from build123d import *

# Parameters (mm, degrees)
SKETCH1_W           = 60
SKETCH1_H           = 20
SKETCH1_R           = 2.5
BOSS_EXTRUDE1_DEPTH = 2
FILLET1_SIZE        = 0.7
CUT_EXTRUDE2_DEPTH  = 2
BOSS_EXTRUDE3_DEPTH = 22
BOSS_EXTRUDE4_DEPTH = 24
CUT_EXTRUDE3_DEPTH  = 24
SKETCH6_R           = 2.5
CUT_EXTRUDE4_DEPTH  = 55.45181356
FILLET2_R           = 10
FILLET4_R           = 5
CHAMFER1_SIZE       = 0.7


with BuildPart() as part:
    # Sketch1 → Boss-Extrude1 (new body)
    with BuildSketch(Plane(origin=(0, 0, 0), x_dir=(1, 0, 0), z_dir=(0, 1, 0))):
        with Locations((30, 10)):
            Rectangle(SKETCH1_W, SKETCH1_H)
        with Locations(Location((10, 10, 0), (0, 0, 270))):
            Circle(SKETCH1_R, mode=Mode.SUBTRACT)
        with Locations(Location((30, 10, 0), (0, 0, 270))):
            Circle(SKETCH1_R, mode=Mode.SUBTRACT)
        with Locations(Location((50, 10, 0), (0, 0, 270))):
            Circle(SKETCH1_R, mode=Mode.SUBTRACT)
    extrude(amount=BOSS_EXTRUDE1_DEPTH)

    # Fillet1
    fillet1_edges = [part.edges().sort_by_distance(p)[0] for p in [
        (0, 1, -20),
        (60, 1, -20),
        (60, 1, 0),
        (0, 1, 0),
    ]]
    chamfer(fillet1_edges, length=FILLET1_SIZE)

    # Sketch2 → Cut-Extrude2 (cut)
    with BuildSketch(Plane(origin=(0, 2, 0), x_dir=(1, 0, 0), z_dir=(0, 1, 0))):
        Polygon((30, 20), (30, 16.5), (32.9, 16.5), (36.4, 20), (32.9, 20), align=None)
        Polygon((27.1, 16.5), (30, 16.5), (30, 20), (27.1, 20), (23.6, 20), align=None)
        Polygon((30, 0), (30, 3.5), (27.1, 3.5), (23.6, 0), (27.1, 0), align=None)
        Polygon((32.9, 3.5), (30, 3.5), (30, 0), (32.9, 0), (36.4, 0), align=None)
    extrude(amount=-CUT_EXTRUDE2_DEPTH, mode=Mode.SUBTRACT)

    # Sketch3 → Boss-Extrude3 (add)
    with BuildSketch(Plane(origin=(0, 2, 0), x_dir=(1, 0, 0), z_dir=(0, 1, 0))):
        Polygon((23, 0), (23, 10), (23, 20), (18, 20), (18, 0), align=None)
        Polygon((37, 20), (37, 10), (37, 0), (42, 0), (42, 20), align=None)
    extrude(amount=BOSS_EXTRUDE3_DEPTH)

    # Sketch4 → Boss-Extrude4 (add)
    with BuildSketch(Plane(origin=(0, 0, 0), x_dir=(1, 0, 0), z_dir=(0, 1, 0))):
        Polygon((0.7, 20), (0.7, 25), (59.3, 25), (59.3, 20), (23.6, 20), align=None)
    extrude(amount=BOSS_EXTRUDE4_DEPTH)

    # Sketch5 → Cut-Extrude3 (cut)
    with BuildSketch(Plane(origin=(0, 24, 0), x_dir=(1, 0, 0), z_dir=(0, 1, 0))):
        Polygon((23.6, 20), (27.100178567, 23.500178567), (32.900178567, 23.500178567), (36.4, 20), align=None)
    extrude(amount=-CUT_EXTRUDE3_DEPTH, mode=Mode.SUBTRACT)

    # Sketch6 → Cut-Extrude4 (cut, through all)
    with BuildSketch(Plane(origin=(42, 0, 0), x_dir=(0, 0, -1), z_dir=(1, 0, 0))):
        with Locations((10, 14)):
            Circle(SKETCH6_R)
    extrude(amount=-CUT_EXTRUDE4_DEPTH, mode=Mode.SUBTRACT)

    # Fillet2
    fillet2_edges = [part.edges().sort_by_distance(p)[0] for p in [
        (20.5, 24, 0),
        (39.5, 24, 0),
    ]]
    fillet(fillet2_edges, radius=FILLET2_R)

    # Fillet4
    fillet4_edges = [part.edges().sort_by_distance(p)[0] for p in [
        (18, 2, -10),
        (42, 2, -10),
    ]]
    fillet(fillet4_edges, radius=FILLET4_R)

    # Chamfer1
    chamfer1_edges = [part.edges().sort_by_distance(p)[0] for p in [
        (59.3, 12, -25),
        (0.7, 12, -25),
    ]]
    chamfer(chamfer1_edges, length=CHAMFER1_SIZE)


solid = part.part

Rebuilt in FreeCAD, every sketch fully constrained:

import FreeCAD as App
import Part
import Sketcher

V = App.Vector
Q = App.Units.Quantity


def edges_at(feature, points):
    """Names of the edges that pass closest to the given points."""
    edges = feature.Shape.Edges
    near = lambda p: min(range(len(edges)), key=lambda i: edges[i].distToShape(Part.Vertex(*p))[0])
    return sorted({f"Edge{near(p) + 1}" for p in points})


def add_polygon(sketch, points):
    """Adds a closed chain of lines whose ends are joined by coincident constraints."""
    first, n = sketch.GeometryCount, len(points)
    for a, b in zip(points, points[1:] + points[:1]):
        sketch.addGeometry(Part.LineSegment(App.Vector(*a, 0), App.Vector(*b, 0)), False)
    for i in range(n):
        sketch.addConstraint(Sketcher.Constraint("Coincident", first + i, 2, first + (i + 1) % n, 1))

doc = App.newDocument("Part")
body = doc.addObject("PartDesign::Body", "Body")

# Sketch on XZ plane
sketch1 = body.newObject("Sketcher::SketchObject", "Sketch")
sketch1.AttachmentSupport = (doc.getObject("XZ_Plane"), [""])
sketch1.MapMode = "FlatFace"
add_polygon(sketch1, [(0, -20), (0, 0), (60, 0), (60, -20)])  # lines 0-3
sketch1.addGeometry(Part.Circle(V(10, -10, 0), V(0, 0, 1), 2.5), False)  # 4
sketch1.addGeometry(Part.Circle(V(30, -10, 0), V(0, 0, 1), 2.5), False)  # 5
sketch1.addGeometry(Part.Circle(V(50, -10, 0), V(0, 0, 1), 2.5), False)  # 6
sketch1.addConstraint([
    Sketcher.Constraint("Vertical", 0),
    Sketcher.Constraint("Horizontal", 1),
    Sketcher.Constraint("Vertical", 2),
    Sketcher.Constraint("Horizontal", 3),
    Sketcher.Constraint("Coincident", 0, 2, -1, 1),
    Sketcher.Constraint("Equal", 4, 5),
    Sketcher.Constraint("Equal", 5, 6),
    Sketcher.Constraint("Horizontal", 4, 3, 5, 3),
    Sketcher.Constraint("Horizontal", 5, 3, 6, 3),
    Sketcher.Constraint("Diameter", 4, 5.0),
    Sketcher.Constraint("DistanceX", 1, 1, 1, 2, 60.0),
    Sketcher.Constraint("DistanceY", 0, 1, 0, 2, 20.0),
    Sketcher.Constraint("DistanceX", -1, 1, 4, 3, 10.0),
    Sketcher.Constraint("DistanceY", 4, 3, -1, 1, 10.0),
    Sketcher.Constraint("DistanceX", -1, 1, 5, 3, 30.0),
    Sketcher.Constraint("DistanceX", -1, 1, 6, 3, 50.0),
])
pad1 = body.newObject("PartDesign::Pad", "Pad")
pad1.Profile = sketch1
pad1.Length = 2
pad1.Reversed = True
doc.recompute()

chamfer = body.newObject("PartDesign::Chamfer", "Chamfer")
chamfer.Base = (pad1, edges_at(pad1, [
    (0, 1, -20),
    (60, 1, -20),
    (60, 1, 0),
    (0, 1, 0),
]))
chamfer.Size = 0.7

# Sketch on XZ plane
sketch2 = body.newObject("Sketcher::SketchObject", "Sketch001")
sketch2.AttachmentSupport = (doc.getObject("XZ_Plane"), [""])
sketch2.MapMode = "FlatFace"
sketch2.AttachmentOffset = App.Placement(V(0, 0, -2), App.Rotation())
add_polygon(sketch2, [(32.9, -16.5), (36.4, -20), (23.6, -20), (27.1, -16.5)])  # lines 0-3
add_polygon(sketch2, [(27.1, -3.5), (23.6, 0), (36.4, 0), (32.9, -3.5)])  # lines 4-7
sketch2.addConstraint([
    Sketcher.Constraint("Horizontal", 1),
    Sketcher.Constraint("Horizontal", 3),
    Sketcher.Constraint("Horizontal", 5),
    Sketcher.Constraint("Horizontal", 7),
    Sketcher.Constraint("PointOnObject", 4, 2, -1),
    Sketcher.Constraint("Perpendicular", 0, 2),
    Sketcher.Constraint("Perpendicular", 2, 4),
    Sketcher.Constraint("Perpendicular", 4, 6),
    Sketcher.Constraint("Vertical", 1, 2, 4, 2),
    Sketcher.Constraint("Vertical", 0, 2, 5, 2),
    Sketcher.Constraint("Vertical", 3, 2, 6, 2),
    Sketcher.Constraint("Vertical", 2, 2, 7, 2),
    Sketcher.Constraint("DistanceX", 1, 2, 1, 1, 12.8),
    Sketcher.Constraint("DistanceX", 3, 1, 3, 2, 5.8),
    Sketcher.Constraint("DistanceY", 0, 2, -1, 1, 20.0),
    Sketcher.Constraint("DistanceX", -1, 1, 0, 2, 36.4),
])
pocket1 = body.newObject("PartDesign::Pocket", "Pocket")
pocket1.Profile = sketch2
pocket1.Length = 2
pocket1.Reversed = True

# Sketch on XZ plane
sketch3 = body.newObject("Sketcher::SketchObject", "Sketch002")
sketch3.AttachmentSupport = (doc.getObject("XZ_Plane"), [""])
sketch3.MapMode = "FlatFace"
sketch3.AttachmentOffset = App.Placement(V(0, 0, -2), App.Rotation())
add_polygon(sketch3, [(23, 0), (23, -20), (18, -20), (18, 0)])  # lines 0-3
add_polygon(sketch3, [(37, -20), (37, 0), (42, 0), (42, -20)])  # lines 4-7
sketch3.addConstraint([
    Sketcher.Constraint("Vertical", 0),
    Sketcher.Constraint("Horizontal", 1),
    Sketcher.Constraint("Vertical", 2),
    Sketcher.Constraint("Horizontal", 3),
    Sketcher.Constraint("Vertical", 4),
    Sketcher.Constraint("Horizontal", 5),
    Sketcher.Constraint("Vertical", 6),
    Sketcher.Constraint("Horizontal", 7),
    Sketcher.Constraint("PointOnObject", 2, 2, -1),
    Sketcher.Constraint("PointOnObject", 4, 2, -1),
    Sketcher.Constraint("Horizontal", 1, 2, 6, 2),
    Sketcher.Constraint("Equal", 3, 5),
    Sketcher.Constraint("DistanceX", 1, 2, 1, 1, 5.0),
    Sketcher.Constraint("DistanceY", 0, 2, 0, 1, 20.0),
    Sketcher.Constraint("DistanceX", -1, 1, 0, 2, 23.0),
    Sketcher.Constraint("DistanceX", -1, 1, 4, 2, 37.0),
])
pad2 = body.newObject("PartDesign::Pad", "Pad001")
pad2.Profile = sketch3
pad2.Length = 22
pad2.Reversed = True

# Sketch on XZ plane
sketch4 = body.newObject("Sketcher::SketchObject", "Sketch003")
sketch4.AttachmentSupport = (doc.getObject("XZ_Plane"), [""])
sketch4.MapMode = "FlatFace"
add_polygon(sketch4, [(0.7, -25), (0.7, -20), (59.3, -20), (59.3, -25)])  # lines 0-3
sketch4.addConstraint([
    Sketcher.Constraint("Vertical", 0),
    Sketcher.Constraint("Horizontal", 1),
    Sketcher.Constraint("Vertical", 2),
    Sketcher.Constraint("Horizontal", 3),
    Sketcher.Constraint("DistanceY", 0, 1, 0, 2, 5.0),
    Sketcher.Constraint("DistanceX", 1, 1, 1, 2, 58.6),
    Sketcher.Constraint("DistanceY", 0, 2, -1, 1, 20.0),
    Sketcher.Constraint("DistanceX", -1, 1, 0, 2, 0.7),
])
pad3 = body.newObject("PartDesign::Pad", "Pad002")
pad3.Profile = sketch4
pad3.Length = 24
pad3.Reversed = True

# Sketch on XZ plane
sketch5 = body.newObject("Sketcher::SketchObject", "Sketch004")
sketch5.AttachmentSupport = (doc.getObject("XZ_Plane"), [""])
sketch5.MapMode = "FlatFace"
sketch5.AttachmentOffset = App.Placement(V(0, 0, -24), App.Rotation())
add_polygon(sketch5, [(27.100179, -23.500179), (23.6, -20), (36.4, -20), (32.900179, -23.500179)])  # lines 0-3
sketch5.addConstraint([
    Sketcher.Constraint("Horizontal", 1),
    Sketcher.Constraint("Horizontal", 3),
    Sketcher.Constraint("Angle", 0, Q("135 deg")),
    Sketcher.Constraint("DistanceX", 1, 1, 1, 2, 12.8),
    Sketcher.Constraint("DistanceX", 3, 2, 3, 1, 5.8),
    Sketcher.Constraint("DistanceY", 0, 2, -1, 1, 20.0),
    Sketcher.Constraint("DistanceX", -1, 1, 0, 2, 23.6),
    Sketcher.Constraint("Distance", 0, 4.95),
])
pocket2 = body.newObject("PartDesign::Pocket", "Pocket001")
pocket2.Profile = sketch5
pocket2.Length = 24
pocket2.Reversed = True

# Sketch on YZ plane
sketch6 = body.newObject("Sketcher::SketchObject", "Sketch005")
sketch6.AttachmentSupport = (doc.getObject("YZ_Plane"), [""])
sketch6.MapMode = "FlatFace"
sketch6.AttachmentOffset = App.Placement(V(0, 0, 42), App.Rotation())
sketch6.addGeometry(Part.Circle(V(14, -10, 0), V(0, 0, 1), 2.5), False)
sketch6.addConstraint([
    Sketcher.Constraint("Diameter", 0, 5.0),
    Sketcher.Constraint("DistanceX", -1, 1, 0, 3, 14.0),
    Sketcher.Constraint("DistanceY", 0, 3, -1, 1, 10.0),
])
pocket3 = body.newObject("PartDesign::Pocket", "Pocket002")
pocket3.Profile = sketch6
pocket3.Type = "ThroughAll"
doc.recompute()

fillet = body.newObject("PartDesign::Fillet", "Fillet")
fillet.Base = (pocket3, edges_at(pocket3, [(20.5, 24, 0), (39.5, 24, 0)]))
fillet.Radius = 10
doc.recompute()

fillet2 = body.newObject("PartDesign::Fillet", "Fillet001")
fillet2.Base = (fillet, edges_at(fillet, [(18, 2, -10), (42, 2, -10)]))
fillet2.Radius = 5
doc.recompute()

chamfer2 = body.newObject("PartDesign::Chamfer", "Chamfer001")
chamfer2.Base = (fillet2, edges_at(fillet2, [(59.3, 12, -25), (0.7, 12, -25)]))
chamfer2.Size = 0.7

doc.recompute()
